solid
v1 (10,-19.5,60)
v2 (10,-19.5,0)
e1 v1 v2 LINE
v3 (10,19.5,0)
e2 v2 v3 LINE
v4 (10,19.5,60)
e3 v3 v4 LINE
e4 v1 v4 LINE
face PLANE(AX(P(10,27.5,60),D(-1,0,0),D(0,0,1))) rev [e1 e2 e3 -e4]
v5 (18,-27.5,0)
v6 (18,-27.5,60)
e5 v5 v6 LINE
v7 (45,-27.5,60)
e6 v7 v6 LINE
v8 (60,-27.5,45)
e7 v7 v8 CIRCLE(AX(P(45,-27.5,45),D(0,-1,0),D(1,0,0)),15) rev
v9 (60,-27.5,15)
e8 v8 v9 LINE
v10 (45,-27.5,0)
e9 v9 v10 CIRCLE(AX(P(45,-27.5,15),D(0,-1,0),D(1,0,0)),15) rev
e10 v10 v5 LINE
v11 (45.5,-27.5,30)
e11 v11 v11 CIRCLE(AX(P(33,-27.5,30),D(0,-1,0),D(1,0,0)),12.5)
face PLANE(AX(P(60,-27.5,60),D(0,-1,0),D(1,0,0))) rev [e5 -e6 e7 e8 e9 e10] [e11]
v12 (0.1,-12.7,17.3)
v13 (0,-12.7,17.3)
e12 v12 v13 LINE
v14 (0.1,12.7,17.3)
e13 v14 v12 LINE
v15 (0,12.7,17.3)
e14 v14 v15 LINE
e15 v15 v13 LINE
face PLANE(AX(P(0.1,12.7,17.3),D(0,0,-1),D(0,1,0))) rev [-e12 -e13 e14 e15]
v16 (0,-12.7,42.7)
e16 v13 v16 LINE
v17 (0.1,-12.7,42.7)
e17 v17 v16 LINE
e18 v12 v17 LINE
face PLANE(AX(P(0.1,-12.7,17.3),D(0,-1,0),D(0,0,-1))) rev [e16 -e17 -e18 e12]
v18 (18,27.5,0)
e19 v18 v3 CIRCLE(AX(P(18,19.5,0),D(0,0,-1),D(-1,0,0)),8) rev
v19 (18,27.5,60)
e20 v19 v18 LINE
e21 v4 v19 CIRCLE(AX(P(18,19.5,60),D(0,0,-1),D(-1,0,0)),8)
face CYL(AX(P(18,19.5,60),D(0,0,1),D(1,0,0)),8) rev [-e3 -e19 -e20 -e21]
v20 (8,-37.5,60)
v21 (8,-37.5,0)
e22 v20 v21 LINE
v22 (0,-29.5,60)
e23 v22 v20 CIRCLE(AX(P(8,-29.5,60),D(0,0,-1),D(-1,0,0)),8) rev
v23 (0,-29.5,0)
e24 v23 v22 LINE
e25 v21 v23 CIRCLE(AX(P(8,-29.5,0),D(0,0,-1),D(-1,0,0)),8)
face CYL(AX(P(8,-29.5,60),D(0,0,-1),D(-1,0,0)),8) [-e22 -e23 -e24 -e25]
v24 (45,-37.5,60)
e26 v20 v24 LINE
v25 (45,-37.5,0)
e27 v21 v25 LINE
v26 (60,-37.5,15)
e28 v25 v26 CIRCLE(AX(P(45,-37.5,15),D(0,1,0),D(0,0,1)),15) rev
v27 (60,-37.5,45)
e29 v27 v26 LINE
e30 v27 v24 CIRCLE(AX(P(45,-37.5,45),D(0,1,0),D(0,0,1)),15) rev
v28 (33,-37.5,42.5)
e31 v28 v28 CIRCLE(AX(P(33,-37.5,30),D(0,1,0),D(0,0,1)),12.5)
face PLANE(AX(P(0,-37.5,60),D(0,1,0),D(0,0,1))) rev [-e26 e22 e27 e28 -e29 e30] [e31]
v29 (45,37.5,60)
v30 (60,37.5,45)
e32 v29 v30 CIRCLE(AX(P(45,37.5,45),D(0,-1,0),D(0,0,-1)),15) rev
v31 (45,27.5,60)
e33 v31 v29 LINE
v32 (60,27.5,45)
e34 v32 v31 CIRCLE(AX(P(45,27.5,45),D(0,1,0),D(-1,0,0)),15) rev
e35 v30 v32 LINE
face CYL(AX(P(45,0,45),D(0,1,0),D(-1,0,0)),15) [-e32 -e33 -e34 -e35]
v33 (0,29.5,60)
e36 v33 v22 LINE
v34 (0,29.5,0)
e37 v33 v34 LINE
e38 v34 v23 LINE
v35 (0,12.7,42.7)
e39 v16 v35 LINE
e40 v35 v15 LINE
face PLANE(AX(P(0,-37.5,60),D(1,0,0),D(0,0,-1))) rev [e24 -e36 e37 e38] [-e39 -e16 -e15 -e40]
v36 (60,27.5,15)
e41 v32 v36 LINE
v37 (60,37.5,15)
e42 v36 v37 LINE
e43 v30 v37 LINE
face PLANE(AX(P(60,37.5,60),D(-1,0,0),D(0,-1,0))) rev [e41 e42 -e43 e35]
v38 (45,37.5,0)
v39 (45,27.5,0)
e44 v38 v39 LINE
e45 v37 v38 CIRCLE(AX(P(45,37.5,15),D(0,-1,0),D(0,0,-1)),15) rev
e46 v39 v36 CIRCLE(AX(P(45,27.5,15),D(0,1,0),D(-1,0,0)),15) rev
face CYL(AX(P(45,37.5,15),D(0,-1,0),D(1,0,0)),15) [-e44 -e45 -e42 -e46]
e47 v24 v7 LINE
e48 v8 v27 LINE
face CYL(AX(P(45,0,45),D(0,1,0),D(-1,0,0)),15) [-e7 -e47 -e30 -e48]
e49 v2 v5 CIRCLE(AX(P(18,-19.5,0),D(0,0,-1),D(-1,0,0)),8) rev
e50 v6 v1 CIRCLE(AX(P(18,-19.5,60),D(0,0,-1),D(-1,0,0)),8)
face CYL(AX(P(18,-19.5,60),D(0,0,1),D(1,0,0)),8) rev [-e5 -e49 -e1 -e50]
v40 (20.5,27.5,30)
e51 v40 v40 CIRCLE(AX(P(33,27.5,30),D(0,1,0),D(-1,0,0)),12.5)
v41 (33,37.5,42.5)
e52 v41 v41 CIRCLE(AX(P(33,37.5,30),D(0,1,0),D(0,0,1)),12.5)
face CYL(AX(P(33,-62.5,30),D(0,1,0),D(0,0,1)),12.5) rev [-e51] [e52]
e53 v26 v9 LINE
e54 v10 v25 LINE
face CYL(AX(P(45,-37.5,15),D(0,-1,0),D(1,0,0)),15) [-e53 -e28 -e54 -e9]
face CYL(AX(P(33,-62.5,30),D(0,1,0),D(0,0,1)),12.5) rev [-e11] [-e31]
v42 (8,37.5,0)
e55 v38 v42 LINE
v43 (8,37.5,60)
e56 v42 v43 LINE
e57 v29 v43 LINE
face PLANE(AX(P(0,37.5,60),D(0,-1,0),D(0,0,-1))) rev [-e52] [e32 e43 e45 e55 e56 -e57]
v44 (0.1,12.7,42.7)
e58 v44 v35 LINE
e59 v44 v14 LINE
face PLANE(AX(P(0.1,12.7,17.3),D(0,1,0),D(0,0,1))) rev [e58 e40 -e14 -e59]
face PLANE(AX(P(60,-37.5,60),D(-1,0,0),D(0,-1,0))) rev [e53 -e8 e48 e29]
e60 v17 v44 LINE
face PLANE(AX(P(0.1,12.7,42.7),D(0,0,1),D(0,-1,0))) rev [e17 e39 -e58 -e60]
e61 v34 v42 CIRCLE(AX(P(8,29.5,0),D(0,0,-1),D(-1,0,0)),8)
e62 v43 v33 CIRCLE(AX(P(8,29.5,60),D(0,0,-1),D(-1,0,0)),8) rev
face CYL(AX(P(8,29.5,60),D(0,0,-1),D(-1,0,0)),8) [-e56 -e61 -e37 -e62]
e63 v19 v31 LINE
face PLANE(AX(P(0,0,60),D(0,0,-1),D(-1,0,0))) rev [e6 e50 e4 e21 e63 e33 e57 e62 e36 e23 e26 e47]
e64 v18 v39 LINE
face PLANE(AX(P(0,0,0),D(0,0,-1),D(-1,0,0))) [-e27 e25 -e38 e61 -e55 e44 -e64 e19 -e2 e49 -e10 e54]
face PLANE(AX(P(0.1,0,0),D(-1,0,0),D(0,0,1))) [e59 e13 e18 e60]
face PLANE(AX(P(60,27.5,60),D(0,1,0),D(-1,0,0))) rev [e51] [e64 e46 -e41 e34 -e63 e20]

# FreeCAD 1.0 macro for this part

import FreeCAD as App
import Part
import Sketcher
from FreeCAD import Vector


def edges_at(feature, points):
    """Names of the edges that pass closest to the given points."""
    edges = feature.Shape.Edges
    near = lambda p: min(range(len(edges)), key=lambda i: edges[i].distToShape(Part.Vertex(*p))[0])
    return sorted({f"Edge{near(p) + 1}" for p in points})

doc = App.newDocument("Part")
body = doc.addObject("PartDesign::Body", "Body")

sketch1 = body.newObject("Sketcher::SketchObject", "Sketch")
sketch1.AttachmentSupport = (doc.getObject("XY_Plane"), [""])
sketch1.MapMode = "FlatFace"
sketch1.addGeometry(Part.LineSegment(Vector(0, 38, 0), Vector(0, -38, 0)), False)
sketch1.addGeometry(Part.LineSegment(Vector(0, -38, 0), Vector(60, -38, 0)), False)
sketch1.addGeometry(Part.LineSegment(Vector(60, -38, 0), Vector(60, -28, 0)), False)
sketch1.addGeometry(Part.LineSegment(Vector(60, -28, 0), Vector(10, -28, 0)), False)
sketch1.addGeometry(Part.LineSegment(Vector(10, -28, 0), Vector(10, 28, 0)), False)
sketch1.addGeometry(Part.LineSegment(Vector(10, 28, 0), Vector(60, 28, 0)), False)
sketch1.addGeometry(Part.LineSegment(Vector(60, 28, 0), Vector(60, 38, 0)), False)
sketch1.addGeometry(Part.LineSegment(Vector(60, 38, 0), Vector(0, 38, 0)), False)
sketch1.addConstraint(Sketcher.Constraint("Coincident", 0, 2, 1, 1))
sketch1.addConstraint(Sketcher.Constraint("Coincident", 1, 2, 2, 1))
sketch1.addConstraint(Sketcher.Constraint("Coincident", 2, 2, 3, 1))
sketch1.addConstraint(Sketcher.Constraint("Coincident", 3, 2, 4, 1))
sketch1.addConstraint(Sketcher.Constraint("Coincident", 4, 2, 5, 1))
sketch1.addConstraint(Sketcher.Constraint("Coincident", 5, 2, 6, 1))
sketch1.addConstraint(Sketcher.Constraint("Coincident", 6, 2, 7, 1))
sketch1.addConstraint(Sketcher.Constraint("Coincident", 7, 2, 0, 1))
sketch1.addConstraint(Sketcher.Constraint("Vertical", 0))
sketch1.addConstraint(Sketcher.Constraint("Horizontal", 1))
sketch1.addConstraint(Sketcher.Constraint("Vertical", 2))
sketch1.addConstraint(Sketcher.Constraint("Horizontal", 3))
sketch1.addConstraint(Sketcher.Constraint("Vertical", 4))
sketch1.addConstraint(Sketcher.Constraint("Horizontal", 5))
sketch1.addConstraint(Sketcher.Constraint("Vertical", 6))
sketch1.addConstraint(Sketcher.Constraint("Horizontal", 7))
sketch1.addConstraint(Sketcher.Constraint("Symmetric", 0, 2, 7, 2, -1, 1))
sketch1.addConstraint(Sketcher.Constraint("Symmetric", 2, 2, 5, 2, -1))
sketch1.addConstraint(Sketcher.Constraint("DistanceX", 1, 1, 1, 2, 60.0))
sketch1.addConstraint(Sketcher.Constraint("DistanceX", 3, 2, 3, 1, 50.0))
sketch1.addConstraint(Sketcher.Constraint("DistanceY", 0, 2, 0, 1, 75.0))
sketch1.addConstraint(Sketcher.Constraint("DistanceY", 2, 1, 2, 2, 10.0))
pad1 = body.newObject("PartDesign::Pad", "Pad")
pad1.Profile = sketch1
pad1.Length = 60
doc.recompute()

fillet = body.newObject("PartDesign::Fillet", "Fillet")
fillet.Base = (pad1, edges_at(pad1, [
    (60, -32.5, 0),
    (60, -32.5, 60),
    (60, 32.5, 60),
    (60, 32.5, 0),
]))
fillet.Radius = 15
doc.recompute()

fillet2 = body.newObject("PartDesign::Fillet", "Fillet001")
fillet2.Base = (fillet, edges_at(fillet, [
    (10, 27.5, 30),
    (10, -27.5, 30),
    (0, -37.5, 30),
    (0, 37.5, 30),
]))
fillet2.Radius = 8

sketch2 = body.newObject("Sketcher::SketchObject", "Sketch001")
sketch2.AttachmentSupport = (doc.getObject("XZ_Plane"), [""])
sketch2.MapMode = "FlatFace"
sketch2.AttachmentOffset = App.Placement(Vector(0, 0, -37.5), App.Rotation())
sketch2.addGeometry(Part.Circle(Vector(33, 30, 0), Vector(0, 0, 1), 12), False)
sketch2.addConstraint(Sketcher.Constraint("Diameter", 0, 25.0))
sketch2.addConstraint(Sketcher.Constraint("DistanceX", -1, 1, 0, 3, 33.0))
sketch2.addConstraint(Sketcher.Constraint("DistanceY", -1, 1, 0, 3, 30.0))
pocket1 = body.newObject("PartDesign::Pocket", "Pocket")
pocket1.Profile = sketch2
pocket1.Length = 100
pocket1.Reversed = True

sketch3 = body.newObject("Sketcher::SketchObject", "Sketch002")
sketch3.AttachmentSupport = (doc.getObject("YZ_Plane"), [""])
sketch3.MapMode = "FlatFace"
sketch3.addGeometry(Part.LineSegment(Vector(13, 17, 0), Vector(-13, 17, 0)), False)
sketch3.addGeometry(Part.LineSegment(Vector(-13, 17, 0), Vector(-13, 43, 0)), False)
sketch3.addGeometry(Part.LineSegment(Vector(-13, 43, 0), Vector(13, 43, 0)), False)
sketch3.addGeometry(Part.LineSegment(Vector(13, 43, 0), Vector(13, 17, 0)), False)
sketch3.addConstraint(Sketcher.Constraint("Coincident", 0, 2, 1, 1))
sketch3.addConstraint(Sketcher.Constraint("Coincident", 1, 2, 2, 1))
sketch3.addConstraint(Sketcher.Constraint("Coincident", 2, 2, 3, 1))
sketch3.addConstraint(Sketcher.Constraint("Coincident", 3, 2, 0, 1))
sketch3.addConstraint(Sketcher.Constraint("Horizontal", 0))
sketch3.addConstraint(Sketcher.Constraint("Vertical", 1))
sketch3.addConstraint(Sketcher.Constraint("Horizontal", 2))
sketch3.addConstraint(Sketcher.Constraint("Vertical", 3))
sketch3.addConstraint(Sketcher.Constraint("Equal", 2, 1))
sketch3.addConstraint(Sketcher.Constraint("DistanceX", 0, 2, 0, 1, 25.4))
sketch3.addConstraint(Sketcher.Constraint("DistanceX", 0, 2, -1, 1, 12.7))
sketch3.addConstraint(Sketcher.Constraint("DistanceY", -1, 1, 0, 2, 17.3))
pocket2 = body.newObject("PartDesign::Pocket", "Pocket001")
pocket2.Profile = sketch3
pocket2.Length = 0.1
pocket2.Reversed = True

doc.recompute()
